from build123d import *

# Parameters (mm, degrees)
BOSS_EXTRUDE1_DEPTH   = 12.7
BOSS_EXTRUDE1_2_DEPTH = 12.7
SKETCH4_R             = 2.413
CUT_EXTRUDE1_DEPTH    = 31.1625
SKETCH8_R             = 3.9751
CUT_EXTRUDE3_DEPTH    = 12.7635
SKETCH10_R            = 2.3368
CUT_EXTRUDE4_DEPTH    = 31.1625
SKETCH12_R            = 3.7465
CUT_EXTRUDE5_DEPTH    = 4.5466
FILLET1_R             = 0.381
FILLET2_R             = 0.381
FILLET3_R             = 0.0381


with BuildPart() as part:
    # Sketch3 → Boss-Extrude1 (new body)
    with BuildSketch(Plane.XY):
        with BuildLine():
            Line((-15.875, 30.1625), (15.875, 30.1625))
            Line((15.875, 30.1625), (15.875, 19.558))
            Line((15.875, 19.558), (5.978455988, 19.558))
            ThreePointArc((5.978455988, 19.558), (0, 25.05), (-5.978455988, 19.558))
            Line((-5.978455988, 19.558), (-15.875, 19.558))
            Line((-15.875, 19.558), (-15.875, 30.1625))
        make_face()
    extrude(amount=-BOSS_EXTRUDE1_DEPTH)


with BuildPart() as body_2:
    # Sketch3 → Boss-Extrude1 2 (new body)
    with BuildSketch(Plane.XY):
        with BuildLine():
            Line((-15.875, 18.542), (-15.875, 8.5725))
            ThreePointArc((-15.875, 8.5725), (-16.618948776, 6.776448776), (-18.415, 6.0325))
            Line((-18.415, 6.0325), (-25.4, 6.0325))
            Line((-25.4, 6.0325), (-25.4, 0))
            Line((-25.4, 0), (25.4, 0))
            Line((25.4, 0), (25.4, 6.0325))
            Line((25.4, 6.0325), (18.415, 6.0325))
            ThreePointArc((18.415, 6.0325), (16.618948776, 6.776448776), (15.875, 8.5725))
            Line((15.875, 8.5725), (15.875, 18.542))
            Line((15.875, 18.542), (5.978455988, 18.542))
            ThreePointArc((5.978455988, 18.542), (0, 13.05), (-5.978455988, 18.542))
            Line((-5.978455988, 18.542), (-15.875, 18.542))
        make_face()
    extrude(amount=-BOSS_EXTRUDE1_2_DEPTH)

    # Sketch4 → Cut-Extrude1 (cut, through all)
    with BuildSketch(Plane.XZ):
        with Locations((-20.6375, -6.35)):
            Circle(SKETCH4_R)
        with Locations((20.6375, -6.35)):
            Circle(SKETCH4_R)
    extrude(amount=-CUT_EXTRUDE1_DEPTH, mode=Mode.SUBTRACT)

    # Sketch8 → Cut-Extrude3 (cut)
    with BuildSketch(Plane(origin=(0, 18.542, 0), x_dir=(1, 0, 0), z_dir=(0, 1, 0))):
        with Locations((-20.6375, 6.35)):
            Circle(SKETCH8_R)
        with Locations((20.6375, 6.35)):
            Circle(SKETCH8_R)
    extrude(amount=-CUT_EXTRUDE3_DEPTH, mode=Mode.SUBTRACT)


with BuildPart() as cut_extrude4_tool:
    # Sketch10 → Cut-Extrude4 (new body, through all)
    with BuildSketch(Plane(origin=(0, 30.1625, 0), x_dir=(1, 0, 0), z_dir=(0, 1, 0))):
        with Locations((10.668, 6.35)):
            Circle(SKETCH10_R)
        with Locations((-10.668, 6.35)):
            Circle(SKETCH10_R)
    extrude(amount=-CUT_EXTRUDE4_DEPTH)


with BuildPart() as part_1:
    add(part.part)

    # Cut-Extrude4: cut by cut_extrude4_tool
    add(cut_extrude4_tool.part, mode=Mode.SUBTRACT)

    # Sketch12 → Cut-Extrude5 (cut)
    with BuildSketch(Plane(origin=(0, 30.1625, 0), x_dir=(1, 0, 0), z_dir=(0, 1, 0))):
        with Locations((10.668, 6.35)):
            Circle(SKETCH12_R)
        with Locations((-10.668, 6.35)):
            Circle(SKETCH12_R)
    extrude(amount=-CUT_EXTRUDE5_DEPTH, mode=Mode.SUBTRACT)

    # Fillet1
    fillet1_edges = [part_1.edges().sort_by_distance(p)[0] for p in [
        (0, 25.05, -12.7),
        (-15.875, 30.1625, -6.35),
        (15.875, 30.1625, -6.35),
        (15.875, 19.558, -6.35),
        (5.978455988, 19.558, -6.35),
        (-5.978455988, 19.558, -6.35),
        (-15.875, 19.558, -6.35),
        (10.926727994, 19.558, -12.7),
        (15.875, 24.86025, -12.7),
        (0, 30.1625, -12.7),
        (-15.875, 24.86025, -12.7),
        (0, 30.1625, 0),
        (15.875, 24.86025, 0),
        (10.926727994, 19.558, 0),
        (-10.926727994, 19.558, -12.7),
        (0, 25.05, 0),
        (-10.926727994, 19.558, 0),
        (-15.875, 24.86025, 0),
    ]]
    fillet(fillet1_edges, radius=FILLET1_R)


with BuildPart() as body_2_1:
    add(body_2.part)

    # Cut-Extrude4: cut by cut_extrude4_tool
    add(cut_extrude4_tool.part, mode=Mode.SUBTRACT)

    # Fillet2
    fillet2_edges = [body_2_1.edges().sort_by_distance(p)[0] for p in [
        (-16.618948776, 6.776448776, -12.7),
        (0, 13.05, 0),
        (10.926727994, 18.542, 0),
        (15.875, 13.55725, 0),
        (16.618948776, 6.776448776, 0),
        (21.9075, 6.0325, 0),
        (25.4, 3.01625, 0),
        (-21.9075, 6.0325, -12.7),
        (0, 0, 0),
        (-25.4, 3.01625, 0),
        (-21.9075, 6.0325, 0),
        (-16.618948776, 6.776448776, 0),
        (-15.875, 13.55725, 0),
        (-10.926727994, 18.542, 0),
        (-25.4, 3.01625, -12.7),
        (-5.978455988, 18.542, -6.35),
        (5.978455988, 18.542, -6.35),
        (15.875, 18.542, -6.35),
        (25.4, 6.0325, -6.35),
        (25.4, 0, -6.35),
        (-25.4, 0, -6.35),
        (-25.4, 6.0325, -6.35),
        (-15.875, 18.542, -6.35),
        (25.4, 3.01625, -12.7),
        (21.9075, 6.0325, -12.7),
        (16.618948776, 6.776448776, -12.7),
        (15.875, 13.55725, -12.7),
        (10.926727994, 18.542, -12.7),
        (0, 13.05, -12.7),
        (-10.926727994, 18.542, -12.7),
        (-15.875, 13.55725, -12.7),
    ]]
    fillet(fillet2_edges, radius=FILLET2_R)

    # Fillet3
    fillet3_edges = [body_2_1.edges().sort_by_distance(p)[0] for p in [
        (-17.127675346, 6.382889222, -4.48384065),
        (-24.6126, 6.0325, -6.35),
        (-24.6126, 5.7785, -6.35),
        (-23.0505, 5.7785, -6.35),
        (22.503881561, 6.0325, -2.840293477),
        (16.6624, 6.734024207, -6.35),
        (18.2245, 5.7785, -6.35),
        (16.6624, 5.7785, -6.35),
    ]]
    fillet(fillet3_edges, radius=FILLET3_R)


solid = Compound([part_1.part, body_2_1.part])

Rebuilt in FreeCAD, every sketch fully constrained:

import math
import FreeCAD as App
import Part
import Sketcher
Q = App.Units.Quantity


def edges_at(feature, points):
    """Names of the edges that pass closest to the given points."""
    edges = feature.Shape.Edges
    near = lambda p: min(range(len(edges)), key=lambda i: edges[i].distToShape(Part.Vertex(*p))[0])
    return sorted({f"Edge{near(p) + 1}" for p in points})

doc = App.newDocument("Part")
body = doc.addObject("PartDesign::Body", "Body")

sketch1 = doc.addObject("Sketcher::SketchObject", "Sketch")
body.addObject(sketch1)
sketch1.AttachmentSupport = (doc.XY_Plane, [""])
sketch1.MapMode = "FlatFace"
sketch1.addGeometry([
    Part.LineSegment(App.Vector(16, 30, 0), App.Vector(-16, 30, 0)),
    Part.LineSegment(App.Vector(-16, 30, 0), App.Vector(-16, 20, 0)),
    Part.LineSegment(App.Vector(-16, 20, 0), App.Vector(-6, 20, 0)),
    Part.ArcOfCircle(Part.Circle(App.Vector(0, 19, 0), App.Vector(0, 0, 1), 6), math.radians(5), math.radians(175)),
    Part.LineSegment(App.Vector(6, 20, 0), App.Vector(16, 20, 0)),
    Part.LineSegment(App.Vector(16, 20, 0), App.Vector(16, 30, 0)),
], False)
sketch1.addConstraint([
    Sketcher.Constraint("Coincident", 0, 2, 1, 1),
    Sketcher.Constraint("Coincident", 1, 2, 2, 1),
    Sketcher.Constraint("Coincident", 2, 2, 3, 2),
    Sketcher.Constraint("Coincident", 3, 1, 4, 1),
    Sketcher.Constraint("Coincident", 4, 2, 5, 1),
    Sketcher.Constraint("Coincident", 5, 2, 0, 1),
    Sketcher.Constraint("Horizontal", 0),
    Sketcher.Constraint("Vertical", 1),
    Sketcher.Constraint("Horizontal", 2),
    Sketcher.Constraint("Horizontal", 4),
    Sketcher.Constraint("Vertical", 5),
    Sketcher.Constraint("Symmetric", 2, 2, 3, 1, -2),
    Sketcher.Constraint("Equal", 2, 4),
    Sketcher.Constraint("DistanceX", 0, 2, 0, 1, Q("1.25 in")),
    Sketcher.Constraint("DistanceY", -1, 1, 3, 3, Q("0.75 in")),
    Sketcher.Constraint("DistanceY", -1, 1, 1, 2, Q("0.77 in")),
    Sketcher.Constraint("Radius", 3, Q("6 mm")),
    Sketcher.Constraint("DistanceY", 1, 2, 1, 1, Q("0.4175 in")),
])
pad1 = doc.addObject("PartDesign::Pad", "Pad")
body.addObject(pad1)
pad1.Profile = sketch1
pad1.Length = Q("0.5 in")
pad1.Reversed = True
body2 = doc.addObject("PartDesign::Body", "Body001")

sketch2 = doc.addObject("Sketcher::SketchObject", "Sketch001")
body2.addObject(sketch2)
sketch2.AttachmentSupport = (doc.getObject("XY_Plane001"), [""])
sketch2.MapMode = "FlatFace"
sketch2.addGeometry([
    Part.LineSegment(App.Vector(-15.9, 18.5, 0), App.Vector(-15.9, 8.6, 0)),
    Part.ArcOfCircle(Part.Circle(App.Vector(-18.4, 8.6, 0), App.Vector(0, 0, 1), 2.5), math.radians(-90), math.radians(0)),
    Part.LineSegment(App.Vector(-18.4, 6, 0), App.Vector(-25.4, 6, 0)),
    Part.LineSegment(App.Vector(-25.4, 6, 0), App.Vector(-25.4, 0, 0)),
    Part.LineSegment(App.Vector(-25.4, 0, 0), App.Vector(25.4, 0, 0)),
    Part.LineSegment(App.Vector(25.4, 0, 0), App.Vector(25.4, 6, 0)),
    Part.LineSegment(App.Vector(25.4, 6, 0), App.Vector(18.4, 6, 0)),
    Part.ArcOfCircle(Part.Circle(App.Vector(18.4, 8.6, 0), App.Vector(0, 0, 1), 2.5), math.radians(-180), math.radians(-90)),
    Part.LineSegment(App.Vector(15.9, 8.6, 0), App.Vector(15.9, 18.5, 0)),
    Part.LineSegment(App.Vector(15.9, 18.5, 0), App.Vector(6, 18.5, 0)),
    Part.ArcOfCircle(Part.Circle(App.Vector(0, 19.1, 0), App.Vector(0, 0, 1), 6), math.radians(-175), math.radians(-5)),
    Part.LineSegment(App.Vector(-6, 18.5, 0), App.Vector(-15.9, 18.5, 0)),
], False)
sketch2.addConstraint([
    Sketcher.Constraint("Tangent", 0, 2, 1, 2),
    Sketcher.Constraint("Tangent", 1, 1, 2, 1),
    Sketcher.Constraint("Coincident", 2, 2, 3, 1),
    Sketcher.Constraint("Coincident", 3, 2, 4, 1),
    Sketcher.Constraint("Coincident", 4, 2, 5, 1),
    Sketcher.Constraint("Coincident", 5, 2, 6, 1),
    Sketcher.Constraint("Tangent", 6, 2, 7, 2),
    Sketcher.Constraint("Tangent", 7, 1, 8, 1),
    Sketcher.Constraint("Coincident", 8, 2, 9, 1),
    Sketcher.Constraint("Coincident", 9, 2, 10, 2),
    Sketcher.Constraint("Coincident", 10, 1, 11, 1),
    Sketcher.Constraint("Coincident", 11, 2, 0, 1),
    Sketcher.Constraint("Vertical", 0),
    Sketcher.Constraint("Horizontal", 2),
    Sketcher.Constraint("Vertical", 3),
    Sketcher.Constraint("Horizontal", 4),
    Sketcher.Constraint("Vertical", 5),
    Sketcher.Constraint("Horizontal", 6),
    Sketcher.Constraint("Vertical", 8),
    Sketcher.Constraint("Horizontal", 9),
    Sketcher.Constraint("Horizontal", 11),
    Sketcher.Constraint("Equal", 1, 7),
    Sketcher.Constraint("Symmetric", 3, 2, 4, 2, -1, 1),
    Sketcher.Constraint("Symmetric", 1, 3, 7, 3, -2),
    Sketcher.Constraint("Symmetric", 9, 2, 10, 1, -2),
    Sketcher.Constraint("Radius", 1, Q("0.1 in")),
    Sketcher.Constraint("DistanceX", 4, 1, 4, 2, Q("2 in")),
    Sketcher.Constraint("DistanceX", 2, 2, 2, 1, Q("0.275 in")),
    Sketcher.Constraint("DistanceY", -1, 1, 10, 3, Q("0.75 in")),
    Sketcher.Constraint("DistanceY", -1, 1, 8, 2, Q("0.73 in")),
    Sketcher.Constraint("Radius", 10, Q("6 mm")),
    Sketcher.Constraint("DistanceY", 0, 2, 0, 1, Q("0.3925 in")),
])
pad2 = doc.addObject("PartDesign::Pad", "Pad001")
body2.addObject(pad2)
pad2.Profile = sketch2
pad2.Length = Q("0.5 in")
pad2.Reversed = True

sketch3 = doc.addObject("Sketcher::SketchObject", "Sketch002")
body2.addObject(sketch3)
sketch3.AttachmentSupport = (doc.getObject("XZ_Plane001"), [""])
sketch3.MapMode = "FlatFace"
sketch3.addGeometry([
    Part.Circle(App.Vector(-20.6, -6.3, 0), App.Vector(0, 0, 1), 2.4),
    Part.Circle(App.Vector(20.6, -6.3, 0), App.Vector(0, 0, 1), 2.4),
], False)
sketch3.addConstraint([
    Sketcher.Constraint("Equal", 0, 1),
    Sketcher.Constraint("Symmetric", 0, 3, 1, 3, -2),
    Sketcher.Constraint("Diameter", 0, Q("0.19 in")),
    Sketcher.Constraint("DistanceY", 0, 3, -1, 1, Q("0.25 in")),
    Sketcher.Constraint("DistanceX", 0, 3, -1, 1, Q("0.8125 in")),
])
pocket1 = doc.addObject("PartDesign::Pocket", "Pocket")
body2.addObject(pocket1)
pocket1.Profile = sketch3
pocket1.Type = "ThroughAll"

sketch4 = doc.addObject("Sketcher::SketchObject", "Sketch003")
body2.addObject(sketch4)
sketch4.AttachmentSupport = (doc.getObject("XZ_Plane001"), [""])
sketch4.MapMode = "FlatFace"
sketch4.AttachmentOffset = App.Placement(App.Vector(0, 0, -0.73 * 25.4), App.Rotation())
sketch4.addGeometry([
    Part.Circle(App.Vector(-20.6, -6.3, 0), App.Vector(0, 0, 1), 4),
    Part.Circle(App.Vector(20.6, -6.3, 0), App.Vector(0, 0, 1), 4),
], False)
sketch4.addConstraint([
    Sketcher.Constraint("Equal", 0, 1),
    Sketcher.Constraint("Symmetric", 0, 3, 1, 3, -2),
    Sketcher.Constraint("Diameter", 0, Q("0.313 in")),
    Sketcher.Constraint("DistanceY", 0, 3, -1, 1, Q("0.25 in")),
    Sketcher.Constraint("DistanceX", 0, 3, -1, 1, Q("0.8125 in")),
])
pocket2 = doc.addObject("PartDesign::Pocket", "Pocket001")
body2.addObject(pocket2)
pocket2.Profile = sketch4
pocket2.Length = Q("0.5025 in")
pocket2.Reversed = True
body3 = doc.addObject("PartDesign::Body", "Body002")
body3.AllowCompound = True

sketch5 = doc.addObject("Sketcher::SketchObject", "Sketch004")
body3.addObject(sketch5)
sketch5.AttachmentSupport = (doc.getObject("XZ_Plane002"), [""])
sketch5.MapMode = "FlatFace"
sketch5.AttachmentOffset = App.Placement(App.Vector(0, 0, -1.1875 * 25.4), App.Rotation())
sketch5.addGeometry([
    Part.Circle(App.Vector(10.7, -6.3, 0), App.Vector(0, 0, 1), 2.3),
    Part.Circle(App.Vector(-10.7, -6.3, 0), App.Vector(0, 0, 1), 2.3),
], False)
sketch5.addConstraint([
    Sketcher.Constraint("Equal", 0, 1),
    Sketcher.Constraint("Symmetric", 0, 3, 1, 3, -2),
    Sketcher.Constraint("Diameter", 0, Q("0.184 in")),
    Sketcher.Constraint("DistanceX", -1, 1, 0, 3, Q("0.42 in")),
    Sketcher.Constraint("DistanceY", 0, 3, -1, 1, Q("0.25 in")),
])
pad3 = doc.addObject("PartDesign::Pad", "Pad002")
body3.addObject(pad3)
pad3.Profile = sketch5
pad3.Length = 31.1625
doc.recompute()

body4 = doc.addObject("PartDesign::Body", "Body003")
body4.BaseFeature = body3
boolean = doc.addObject("PartDesign::Boolean", "Boolean")
body.addObject(boolean)
boolean.Type = "Cut"
boolean.addObjects([body4])
doc.recompute()

sketch6 = doc.addObject("Sketcher::SketchObject", "Sketch005")
body.addObject(sketch6)
sketch6.AttachmentSupport = (doc.XZ_Plane, [""])
sketch6.MapMode = "FlatFace"
sketch6.AttachmentOffset = App.Placement(App.Vector(0, 0, -1.1875 * 25.4), App.Rotation())
sketch6.addGeometry([
    Part.Circle(App.Vector(10.7, -6.3, 0), App.Vector(0, 0, 1), 3.7),
    Part.Circle(App.Vector(-10.7, -6.3, 0), App.Vector(0, 0, 1), 3.7),
], False)
sketch6.addConstraint([
    Sketcher.Constraint("Equal", 0, 1),
    Sketcher.Constraint("Symmetric", 0, 3, 1, 3, -2),
    Sketcher.Constraint("Diameter", 0, Q("0.295 in")),
    Sketcher.Constraint("DistanceX", -1, 1, 0, 3, Q("0.42 in")),
    Sketcher.Constraint("DistanceY", 0, 3, -1, 1, Q("0.25 in")),
])
pocket3 = doc.addObject("PartDesign::Pocket", "Pocket002")
body.addObject(pocket3)
pocket3.Profile = sketch6
pocket3.Length = Q("0.179 in")
pocket3.Reversed = True
doc.recompute()

fillet = doc.addObject("PartDesign::Fillet", "Fillet")
body.addObject(fillet)
fillet.Base = (pocket3, edges_at(pocket3, [
    (0, 25.05, -12.7),
    (-15.875, 30.163, -6.35),
    (15.875, 30.163, -6.35),
    (15.875, 19.558, -6.35),
    (5.978, 19.558, -6.35),
    (-5.978, 19.558, -6.35),
    (-15.875, 19.558, -6.35),
    (10.927, 19.558, -12.7),
    (15.875, 24.86, -12.7),
    (0, 30.163, -12.7),
    (-15.875, 24.86, -12.7),
    (0, 30.163, 0),
    (15.875, 24.86, 0),
    (10.927, 19.558, 0),
    (-10.927, 19.558, -12.7),
    (0, 25.05, 0),
    (-10.927, 19.558, 0),
    (-15.875, 24.86, 0),
]))
fillet.Radius = Q("0.015 in")
doc.recompute()

boolean2 = doc.addObject("PartDesign::Boolean", "Boolean001")
body2.addObject(boolean2)
boolean2.Type = "Cut"
boolean2.addObjects([body3])
doc.recompute()

fillet2 = doc.addObject("PartDesign::Fillet", "Fillet001")
body2.addObject(fillet2)
fillet2.Base = (boolean2, edges_at(boolean2, [
    (-16.619, 6.776, -12.7),
    (0, 13.05, 0),
    (10.927, 18.542, 0),
    (15.875, 13.557, 0),
    (16.619, 6.776, 0),
    (21.907, 6.032, 0),
    (25.4, 3.016, 0),
    (-21.907, 6.032, -12.7),
    (0, 0, 0),
    (-25.4, 3.016, 0),
    (-21.907, 6.032, 0),
    (-16.619, 6.776, 0),
    (-15.875, 13.557, 0),
    (-10.927, 18.542, 0),
    (-25.4, 3.016, -12.7),
    (-5.978, 18.542, -6.35),
    (5.978, 18.542, -6.35),
    (15.875, 18.542, -6.35),
    (25.4, 6.032, -6.35),
    (25.4, 0, -6.35),
    (-25.4, 0, -6.35),
    (-25.4, 6.032, -6.35),
    (-15.875, 18.542, -6.35),
    (25.4, 3.016, -12.7),
    (21.907, 6.032, -12.7),
    (16.619, 6.776, -12.7),
    (15.875, 13.557, -12.7),
    (10.927, 18.542, -12.7),
    (0, 13.05, -12.7),
    (-10.927, 18.542, -12.7),
    (-15.875, 13.557, -12.7),
]))
fillet2.Radius = Q("0.015 in")
doc.recompute()

fillet3 = doc.addObject("PartDesign::Fillet", "Fillet002")
body2.addObject(fillet3)
fillet3.Base = (fillet2, edges_at(fillet2, [
    (-17.128, 6.383, -4.484),
    (-24.613, 6.032, -6.35),
    (-24.613, 5.779, -6.35),
    (-23.05, 5.779, -6.35),
    (22.504, 6.032, -2.84),
    (16.662, 6.734, -6.35),
    (18.224, 5.779, -6.35),
    (16.662, 5.779, -6.35),
]))
fillet3.Radius = Q("0.0015 in")

doc.recompute()
